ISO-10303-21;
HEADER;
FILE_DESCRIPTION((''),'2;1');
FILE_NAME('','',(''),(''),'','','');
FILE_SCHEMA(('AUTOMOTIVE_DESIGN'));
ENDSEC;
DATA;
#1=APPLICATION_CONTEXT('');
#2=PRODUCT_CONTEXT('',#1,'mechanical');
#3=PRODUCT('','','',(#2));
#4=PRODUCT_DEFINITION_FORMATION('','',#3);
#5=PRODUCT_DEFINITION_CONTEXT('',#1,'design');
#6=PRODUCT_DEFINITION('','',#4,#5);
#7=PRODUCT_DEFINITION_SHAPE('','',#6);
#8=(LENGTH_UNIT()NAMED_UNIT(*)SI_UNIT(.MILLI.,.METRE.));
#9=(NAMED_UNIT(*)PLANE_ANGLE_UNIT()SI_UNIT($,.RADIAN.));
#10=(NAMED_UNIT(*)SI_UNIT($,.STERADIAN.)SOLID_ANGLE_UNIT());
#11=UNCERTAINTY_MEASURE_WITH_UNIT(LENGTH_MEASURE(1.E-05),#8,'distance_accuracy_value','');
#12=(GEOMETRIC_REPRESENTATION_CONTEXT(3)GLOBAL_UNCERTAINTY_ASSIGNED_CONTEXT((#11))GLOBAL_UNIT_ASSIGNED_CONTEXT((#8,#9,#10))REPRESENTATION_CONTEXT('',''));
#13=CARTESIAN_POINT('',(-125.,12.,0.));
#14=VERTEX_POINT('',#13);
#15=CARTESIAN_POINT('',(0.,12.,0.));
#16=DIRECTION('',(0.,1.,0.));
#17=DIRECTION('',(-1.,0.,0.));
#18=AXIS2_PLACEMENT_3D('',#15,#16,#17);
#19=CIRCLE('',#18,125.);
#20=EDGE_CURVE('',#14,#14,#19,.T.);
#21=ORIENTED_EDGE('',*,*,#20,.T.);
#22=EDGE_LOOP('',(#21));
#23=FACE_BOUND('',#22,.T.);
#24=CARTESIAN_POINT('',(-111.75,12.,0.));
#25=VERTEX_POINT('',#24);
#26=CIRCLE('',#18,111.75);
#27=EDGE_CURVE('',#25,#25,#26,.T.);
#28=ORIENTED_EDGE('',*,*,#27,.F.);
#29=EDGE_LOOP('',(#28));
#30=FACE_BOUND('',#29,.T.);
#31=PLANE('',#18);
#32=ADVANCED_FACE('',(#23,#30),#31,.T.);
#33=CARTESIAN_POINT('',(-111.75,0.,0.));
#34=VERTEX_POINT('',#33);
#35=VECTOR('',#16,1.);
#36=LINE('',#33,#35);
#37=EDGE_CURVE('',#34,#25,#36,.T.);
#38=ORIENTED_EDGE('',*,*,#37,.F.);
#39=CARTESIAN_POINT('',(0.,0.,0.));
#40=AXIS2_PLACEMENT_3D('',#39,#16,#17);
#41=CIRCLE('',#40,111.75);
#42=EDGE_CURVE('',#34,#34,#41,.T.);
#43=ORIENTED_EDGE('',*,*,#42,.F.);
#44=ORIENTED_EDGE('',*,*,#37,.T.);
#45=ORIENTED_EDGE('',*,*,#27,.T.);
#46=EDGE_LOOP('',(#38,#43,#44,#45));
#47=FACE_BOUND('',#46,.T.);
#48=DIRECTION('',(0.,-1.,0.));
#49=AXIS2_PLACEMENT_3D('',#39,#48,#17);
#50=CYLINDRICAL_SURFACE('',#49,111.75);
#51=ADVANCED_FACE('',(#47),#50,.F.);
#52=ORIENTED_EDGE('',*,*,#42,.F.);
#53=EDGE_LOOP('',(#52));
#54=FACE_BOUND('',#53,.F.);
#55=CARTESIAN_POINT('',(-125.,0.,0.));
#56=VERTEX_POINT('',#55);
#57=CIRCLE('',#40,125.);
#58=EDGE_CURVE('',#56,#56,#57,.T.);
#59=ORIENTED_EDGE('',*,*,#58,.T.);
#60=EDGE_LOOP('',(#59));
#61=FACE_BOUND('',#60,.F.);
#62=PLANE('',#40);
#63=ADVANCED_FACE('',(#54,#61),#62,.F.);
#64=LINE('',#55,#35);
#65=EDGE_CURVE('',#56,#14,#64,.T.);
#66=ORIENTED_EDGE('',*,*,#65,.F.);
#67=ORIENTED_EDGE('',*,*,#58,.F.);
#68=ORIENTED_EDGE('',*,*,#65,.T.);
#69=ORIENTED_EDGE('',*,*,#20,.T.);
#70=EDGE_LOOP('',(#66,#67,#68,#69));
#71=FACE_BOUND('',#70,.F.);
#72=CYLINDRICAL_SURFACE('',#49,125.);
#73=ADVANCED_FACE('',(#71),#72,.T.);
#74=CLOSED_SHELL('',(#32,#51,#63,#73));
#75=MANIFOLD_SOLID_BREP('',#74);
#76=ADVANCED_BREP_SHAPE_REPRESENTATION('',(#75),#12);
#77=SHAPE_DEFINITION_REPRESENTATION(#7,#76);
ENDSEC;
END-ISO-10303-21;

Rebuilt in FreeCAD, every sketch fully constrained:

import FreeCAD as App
import Part
import Sketcher

doc = App.newDocument("Part")
body = doc.addObject("PartDesign::Body", "Body")

# Sketch on XZ plane
sketch1 = doc.addObject("Sketcher::SketchObject", "Sketch")
body.addObject(sketch1)
sketch1.AttachmentSupport = (doc.XZ_Plane, [""])
sketch1.MapMode = "FlatFace"
sketch1.addGeometry(Part.Circle(App.Vector(0, 0, 0), App.Vector(0, 0, 1), 125), False)
sketch1.addGeometry(Part.Circle(App.Vector(0, 0, 0), App.Vector(0, 0, 1), 112), False)
sketch1.addConstraint(Sketcher.Constraint("Coincident", 0, 3, -1, 1))
sketch1.addConstraint(Sketcher.Constraint("Coincident", 1, 3, -1, 1))
sketch1.addConstraint(Sketcher.Constraint("Diameter", 0, 250.0))
sketch1.addConstraint(Sketcher.Constraint("Diameter", 1, 223.5))
pad1 = doc.addObject("PartDesign::Pad", "Pad")
body.addObject(pad1)
pad1.Profile = sketch1
pad1.Length = 12
pad1.Reversed = True

doc.recompute()
